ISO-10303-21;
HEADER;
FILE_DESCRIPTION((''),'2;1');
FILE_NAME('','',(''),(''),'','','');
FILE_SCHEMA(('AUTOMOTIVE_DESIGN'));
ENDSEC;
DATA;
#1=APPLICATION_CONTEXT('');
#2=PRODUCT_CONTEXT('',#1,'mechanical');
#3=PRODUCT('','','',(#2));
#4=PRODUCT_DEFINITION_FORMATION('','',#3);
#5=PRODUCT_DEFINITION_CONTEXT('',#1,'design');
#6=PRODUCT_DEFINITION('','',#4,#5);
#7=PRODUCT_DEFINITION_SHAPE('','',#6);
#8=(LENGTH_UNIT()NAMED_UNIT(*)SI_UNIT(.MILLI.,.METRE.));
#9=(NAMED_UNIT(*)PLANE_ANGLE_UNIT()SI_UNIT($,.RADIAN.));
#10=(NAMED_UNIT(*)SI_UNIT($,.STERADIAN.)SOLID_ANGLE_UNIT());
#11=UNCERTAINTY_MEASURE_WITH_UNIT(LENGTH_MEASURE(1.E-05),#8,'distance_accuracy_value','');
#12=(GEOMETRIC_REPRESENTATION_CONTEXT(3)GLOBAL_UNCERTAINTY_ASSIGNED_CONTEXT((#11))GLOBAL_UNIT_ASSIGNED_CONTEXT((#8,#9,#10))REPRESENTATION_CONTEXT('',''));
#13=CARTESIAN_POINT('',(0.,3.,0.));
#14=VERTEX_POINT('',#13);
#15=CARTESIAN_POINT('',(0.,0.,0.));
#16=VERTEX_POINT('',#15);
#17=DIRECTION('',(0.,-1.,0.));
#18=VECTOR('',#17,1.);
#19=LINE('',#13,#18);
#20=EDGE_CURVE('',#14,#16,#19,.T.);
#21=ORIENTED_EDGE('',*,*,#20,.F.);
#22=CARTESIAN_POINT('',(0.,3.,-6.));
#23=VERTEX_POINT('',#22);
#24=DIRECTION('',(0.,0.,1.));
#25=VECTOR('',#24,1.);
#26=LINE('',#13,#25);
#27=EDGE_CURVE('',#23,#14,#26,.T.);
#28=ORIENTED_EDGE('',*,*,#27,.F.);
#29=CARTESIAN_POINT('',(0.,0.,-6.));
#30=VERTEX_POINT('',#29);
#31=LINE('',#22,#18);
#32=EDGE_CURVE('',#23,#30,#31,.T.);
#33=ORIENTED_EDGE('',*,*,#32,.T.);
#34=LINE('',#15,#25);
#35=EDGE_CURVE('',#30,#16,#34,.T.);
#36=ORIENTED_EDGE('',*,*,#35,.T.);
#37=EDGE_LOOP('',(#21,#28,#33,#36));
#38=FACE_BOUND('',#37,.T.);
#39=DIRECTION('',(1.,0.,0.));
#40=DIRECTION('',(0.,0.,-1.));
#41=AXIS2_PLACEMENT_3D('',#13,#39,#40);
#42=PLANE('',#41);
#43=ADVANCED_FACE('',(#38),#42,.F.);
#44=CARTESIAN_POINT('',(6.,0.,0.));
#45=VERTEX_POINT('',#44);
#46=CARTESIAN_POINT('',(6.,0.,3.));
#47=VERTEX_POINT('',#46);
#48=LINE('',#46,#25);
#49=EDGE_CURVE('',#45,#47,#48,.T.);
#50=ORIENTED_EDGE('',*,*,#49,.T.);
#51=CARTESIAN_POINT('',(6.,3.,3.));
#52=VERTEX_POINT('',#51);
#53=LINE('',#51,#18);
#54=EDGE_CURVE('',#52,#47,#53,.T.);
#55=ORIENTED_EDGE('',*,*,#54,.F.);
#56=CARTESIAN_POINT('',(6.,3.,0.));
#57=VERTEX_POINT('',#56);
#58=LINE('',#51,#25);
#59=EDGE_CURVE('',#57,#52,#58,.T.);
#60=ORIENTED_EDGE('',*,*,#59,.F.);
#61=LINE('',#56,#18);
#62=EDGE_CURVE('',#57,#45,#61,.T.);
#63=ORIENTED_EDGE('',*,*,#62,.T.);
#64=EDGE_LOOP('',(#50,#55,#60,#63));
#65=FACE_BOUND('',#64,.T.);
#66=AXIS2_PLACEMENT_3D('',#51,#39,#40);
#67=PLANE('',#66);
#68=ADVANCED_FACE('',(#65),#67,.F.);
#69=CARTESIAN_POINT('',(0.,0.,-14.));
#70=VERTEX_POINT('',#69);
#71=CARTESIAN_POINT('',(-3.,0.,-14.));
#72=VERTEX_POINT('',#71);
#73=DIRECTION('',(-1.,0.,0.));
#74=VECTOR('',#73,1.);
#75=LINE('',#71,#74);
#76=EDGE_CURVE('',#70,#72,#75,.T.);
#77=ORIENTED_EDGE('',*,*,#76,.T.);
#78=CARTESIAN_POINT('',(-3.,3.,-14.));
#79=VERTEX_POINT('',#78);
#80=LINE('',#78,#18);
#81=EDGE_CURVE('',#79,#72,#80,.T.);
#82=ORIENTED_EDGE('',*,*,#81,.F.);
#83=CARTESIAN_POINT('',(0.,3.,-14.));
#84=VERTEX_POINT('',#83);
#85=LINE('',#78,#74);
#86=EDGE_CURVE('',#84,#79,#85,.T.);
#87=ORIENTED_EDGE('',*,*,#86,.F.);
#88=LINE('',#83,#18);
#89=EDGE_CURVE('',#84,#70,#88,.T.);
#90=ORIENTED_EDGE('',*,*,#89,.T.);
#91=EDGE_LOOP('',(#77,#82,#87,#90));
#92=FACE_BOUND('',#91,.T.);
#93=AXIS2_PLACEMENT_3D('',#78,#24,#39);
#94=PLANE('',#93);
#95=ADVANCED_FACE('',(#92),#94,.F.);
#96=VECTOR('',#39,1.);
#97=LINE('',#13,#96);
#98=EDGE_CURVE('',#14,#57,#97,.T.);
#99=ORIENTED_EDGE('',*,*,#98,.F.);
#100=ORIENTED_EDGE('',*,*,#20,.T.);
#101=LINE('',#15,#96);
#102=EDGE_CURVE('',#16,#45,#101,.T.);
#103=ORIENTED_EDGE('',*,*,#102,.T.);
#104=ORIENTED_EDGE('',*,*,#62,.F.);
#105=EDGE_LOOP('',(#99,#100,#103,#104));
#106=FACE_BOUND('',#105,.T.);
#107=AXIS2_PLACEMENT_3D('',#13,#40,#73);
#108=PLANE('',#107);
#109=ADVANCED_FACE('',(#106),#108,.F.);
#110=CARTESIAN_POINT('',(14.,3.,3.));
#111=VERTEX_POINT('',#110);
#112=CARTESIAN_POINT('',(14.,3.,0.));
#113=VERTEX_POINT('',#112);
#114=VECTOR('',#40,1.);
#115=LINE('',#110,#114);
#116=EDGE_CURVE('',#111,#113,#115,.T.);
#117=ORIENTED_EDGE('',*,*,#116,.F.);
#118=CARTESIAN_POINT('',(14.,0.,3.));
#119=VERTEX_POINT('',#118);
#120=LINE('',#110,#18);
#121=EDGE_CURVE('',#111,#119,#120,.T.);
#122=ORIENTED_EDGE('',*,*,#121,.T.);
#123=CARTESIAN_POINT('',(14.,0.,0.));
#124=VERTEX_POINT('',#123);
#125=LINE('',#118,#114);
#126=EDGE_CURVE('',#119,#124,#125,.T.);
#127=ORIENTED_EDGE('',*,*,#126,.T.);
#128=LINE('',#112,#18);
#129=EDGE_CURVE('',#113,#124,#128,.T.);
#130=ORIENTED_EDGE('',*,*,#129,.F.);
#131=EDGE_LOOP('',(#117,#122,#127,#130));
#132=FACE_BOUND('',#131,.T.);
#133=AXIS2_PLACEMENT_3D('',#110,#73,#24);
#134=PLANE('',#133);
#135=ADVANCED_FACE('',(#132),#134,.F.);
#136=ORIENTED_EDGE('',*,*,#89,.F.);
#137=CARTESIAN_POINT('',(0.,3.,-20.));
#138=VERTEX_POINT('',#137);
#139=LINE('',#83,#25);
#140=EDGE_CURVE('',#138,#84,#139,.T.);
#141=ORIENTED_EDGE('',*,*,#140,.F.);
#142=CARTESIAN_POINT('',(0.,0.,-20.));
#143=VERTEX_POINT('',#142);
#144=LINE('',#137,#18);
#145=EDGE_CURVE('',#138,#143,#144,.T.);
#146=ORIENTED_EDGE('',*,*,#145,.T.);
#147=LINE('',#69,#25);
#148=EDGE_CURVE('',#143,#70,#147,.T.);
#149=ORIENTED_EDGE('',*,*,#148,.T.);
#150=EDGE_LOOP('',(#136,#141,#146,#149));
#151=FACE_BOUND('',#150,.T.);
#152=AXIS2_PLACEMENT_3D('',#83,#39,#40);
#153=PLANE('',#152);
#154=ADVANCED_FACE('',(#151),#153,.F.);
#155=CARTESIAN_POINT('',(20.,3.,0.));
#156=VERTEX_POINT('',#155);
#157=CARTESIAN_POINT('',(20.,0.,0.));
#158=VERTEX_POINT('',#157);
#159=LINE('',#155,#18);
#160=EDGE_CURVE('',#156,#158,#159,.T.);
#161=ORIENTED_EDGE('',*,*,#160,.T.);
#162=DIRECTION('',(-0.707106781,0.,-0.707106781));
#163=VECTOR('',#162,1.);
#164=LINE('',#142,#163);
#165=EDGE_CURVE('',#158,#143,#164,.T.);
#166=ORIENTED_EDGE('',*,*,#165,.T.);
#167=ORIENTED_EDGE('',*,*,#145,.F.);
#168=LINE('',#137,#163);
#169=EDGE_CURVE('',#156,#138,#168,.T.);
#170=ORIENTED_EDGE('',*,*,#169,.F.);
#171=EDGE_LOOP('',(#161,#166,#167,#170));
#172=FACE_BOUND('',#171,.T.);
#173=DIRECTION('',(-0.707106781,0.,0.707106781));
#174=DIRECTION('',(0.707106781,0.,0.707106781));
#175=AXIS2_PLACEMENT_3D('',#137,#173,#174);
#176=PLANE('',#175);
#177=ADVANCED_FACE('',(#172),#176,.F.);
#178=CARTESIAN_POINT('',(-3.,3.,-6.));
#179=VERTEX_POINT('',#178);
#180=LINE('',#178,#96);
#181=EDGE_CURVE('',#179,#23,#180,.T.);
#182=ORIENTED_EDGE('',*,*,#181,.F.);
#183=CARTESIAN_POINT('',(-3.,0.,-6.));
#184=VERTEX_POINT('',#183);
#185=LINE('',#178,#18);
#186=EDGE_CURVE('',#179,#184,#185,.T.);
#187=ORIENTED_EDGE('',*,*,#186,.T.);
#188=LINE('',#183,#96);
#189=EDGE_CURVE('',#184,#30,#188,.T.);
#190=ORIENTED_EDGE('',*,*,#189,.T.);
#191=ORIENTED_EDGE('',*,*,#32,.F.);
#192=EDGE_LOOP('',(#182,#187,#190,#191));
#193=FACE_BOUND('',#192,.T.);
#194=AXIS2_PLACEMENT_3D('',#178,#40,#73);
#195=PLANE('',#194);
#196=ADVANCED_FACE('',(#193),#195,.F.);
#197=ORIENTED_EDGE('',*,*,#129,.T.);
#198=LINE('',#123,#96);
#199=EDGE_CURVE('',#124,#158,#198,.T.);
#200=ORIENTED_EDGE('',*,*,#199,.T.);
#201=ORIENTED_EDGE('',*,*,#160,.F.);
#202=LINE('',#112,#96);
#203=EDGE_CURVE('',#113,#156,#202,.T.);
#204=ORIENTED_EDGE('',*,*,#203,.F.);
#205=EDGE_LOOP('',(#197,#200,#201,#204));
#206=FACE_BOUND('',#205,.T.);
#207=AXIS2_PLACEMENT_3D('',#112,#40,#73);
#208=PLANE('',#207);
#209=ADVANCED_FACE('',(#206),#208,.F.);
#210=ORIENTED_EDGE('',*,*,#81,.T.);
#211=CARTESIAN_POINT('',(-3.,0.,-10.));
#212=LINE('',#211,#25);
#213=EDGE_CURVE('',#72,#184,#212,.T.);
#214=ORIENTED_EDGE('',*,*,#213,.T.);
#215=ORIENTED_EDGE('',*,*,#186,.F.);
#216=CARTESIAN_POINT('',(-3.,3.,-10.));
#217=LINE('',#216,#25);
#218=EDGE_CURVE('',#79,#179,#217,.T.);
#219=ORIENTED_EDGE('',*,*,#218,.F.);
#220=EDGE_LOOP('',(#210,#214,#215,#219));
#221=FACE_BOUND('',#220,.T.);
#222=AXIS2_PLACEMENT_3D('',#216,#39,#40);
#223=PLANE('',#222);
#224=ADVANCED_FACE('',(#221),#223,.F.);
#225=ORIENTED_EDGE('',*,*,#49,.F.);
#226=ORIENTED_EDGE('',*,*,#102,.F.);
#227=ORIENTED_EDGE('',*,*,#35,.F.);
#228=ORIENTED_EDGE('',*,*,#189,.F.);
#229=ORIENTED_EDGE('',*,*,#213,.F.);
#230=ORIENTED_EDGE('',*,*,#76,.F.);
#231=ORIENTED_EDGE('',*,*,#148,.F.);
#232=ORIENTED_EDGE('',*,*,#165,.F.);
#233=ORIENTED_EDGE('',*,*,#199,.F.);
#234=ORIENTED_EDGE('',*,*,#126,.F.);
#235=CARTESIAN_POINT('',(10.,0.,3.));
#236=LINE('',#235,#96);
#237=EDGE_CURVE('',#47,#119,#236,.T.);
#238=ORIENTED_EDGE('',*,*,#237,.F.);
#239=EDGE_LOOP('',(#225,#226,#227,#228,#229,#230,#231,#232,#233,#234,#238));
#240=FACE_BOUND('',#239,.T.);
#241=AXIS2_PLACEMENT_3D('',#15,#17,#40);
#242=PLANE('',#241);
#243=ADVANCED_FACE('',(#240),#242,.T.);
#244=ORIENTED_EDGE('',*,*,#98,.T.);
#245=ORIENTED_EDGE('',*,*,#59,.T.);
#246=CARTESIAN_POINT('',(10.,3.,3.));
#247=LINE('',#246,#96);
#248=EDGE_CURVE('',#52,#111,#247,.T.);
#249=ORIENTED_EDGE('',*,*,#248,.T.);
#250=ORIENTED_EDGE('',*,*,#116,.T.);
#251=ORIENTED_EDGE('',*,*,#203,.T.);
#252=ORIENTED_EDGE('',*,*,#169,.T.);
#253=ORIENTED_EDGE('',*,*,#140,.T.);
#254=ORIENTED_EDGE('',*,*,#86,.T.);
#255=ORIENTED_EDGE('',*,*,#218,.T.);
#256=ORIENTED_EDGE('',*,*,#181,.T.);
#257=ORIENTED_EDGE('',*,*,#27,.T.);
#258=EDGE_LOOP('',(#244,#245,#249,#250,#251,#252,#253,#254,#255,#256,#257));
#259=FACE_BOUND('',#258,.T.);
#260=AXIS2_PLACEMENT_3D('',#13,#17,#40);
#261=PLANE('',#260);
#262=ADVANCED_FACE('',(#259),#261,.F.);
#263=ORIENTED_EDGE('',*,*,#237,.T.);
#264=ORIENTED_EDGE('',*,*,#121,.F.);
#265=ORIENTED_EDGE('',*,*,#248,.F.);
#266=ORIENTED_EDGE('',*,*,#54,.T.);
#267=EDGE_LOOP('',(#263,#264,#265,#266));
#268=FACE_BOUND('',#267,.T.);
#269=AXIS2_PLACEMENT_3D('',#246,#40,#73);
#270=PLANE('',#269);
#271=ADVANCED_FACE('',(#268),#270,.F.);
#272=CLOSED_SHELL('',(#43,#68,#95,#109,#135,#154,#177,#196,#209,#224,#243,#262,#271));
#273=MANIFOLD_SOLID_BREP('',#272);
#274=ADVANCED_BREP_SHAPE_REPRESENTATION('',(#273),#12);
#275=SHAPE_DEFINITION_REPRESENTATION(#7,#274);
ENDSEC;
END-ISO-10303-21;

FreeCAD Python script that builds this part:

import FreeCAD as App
import Part
import Sketcher
from FreeCAD import Vector
Q = App.Units.Quantity


def add_polygon(sketch, points):
    """Adds a closed chain of lines whose ends are joined by coincident constraints."""
    first, n = sketch.GeometryCount, len(points)
    for a, b in zip(points, points[1:] + points[:1]):
        sketch.addGeometry(Part.LineSegment(App.Vector(*a, 0), App.Vector(*b, 0)), False)
    for i in range(n):
        sketch.addConstraint(Sketcher.Constraint("Coincident", first + i, 2, first + (i + 1) % n, 1))

doc = App.newDocument("Part")
body = doc.addObject("PartDesign::Body", "Body")

sketch1 = doc.addObject("Sketcher::SketchObject", "Sketch")
body.addObject(sketch1)
sketch1.AttachmentSupport = (doc.XZ_Plane, [""])
sketch1.MapMode = "FlatFace"
add_polygon(sketch1, [(0, 0), (6, 0), (6, 3), (14, 3), (14, 0), (20, 0), (0, -20), (0, -14), (-3, -14), (-3, -6), (0, -6)])
sketch1.addConstraint(Sketcher.Constraint("Horizontal", 0))
sketch1.addConstraint(Sketcher.Constraint("Vertical", 1))
sketch1.addConstraint(Sketcher.Constraint("Horizontal", 2))
sketch1.addConstraint(Sketcher.Constraint("Vertical", 3))
sketch1.addConstraint(Sketcher.Constraint("Horizontal", 4))
sketch1.addConstraint(Sketcher.Constraint("Vertical", 6))
sketch1.addConstraint(Sketcher.Constraint("Horizontal", 7))
sketch1.addConstraint(Sketcher.Constraint("Vertical", 8))
sketch1.addConstraint(Sketcher.Constraint("Horizontal", 9))
sketch1.addConstraint(Sketcher.Constraint("Vertical", 10))
sketch1.addConstraint(Sketcher.Constraint("Coincident", 10, 2, -1, 1))
sketch1.addConstraint(Sketcher.Constraint("PointOnObject", 3, 2, -1))
sketch1.addConstraint(Sketcher.Constraint("PointOnObject", 5, 2, -2))
sketch1.addConstraint(Sketcher.Constraint("Equal", 0, 4))
sketch1.addConstraint(Sketcher.Constraint("Equal", 9, 1))
sketch1.addConstraint(Sketcher.Constraint("Equal", 4, 6))
sketch1.addConstraint(Sketcher.Constraint("Equal", 2, 8))
sketch1.addConstraint(Sketcher.Constraint("Equal", 6, 10))
sketch1.addConstraint(Sketcher.Constraint("DistanceX", 0, 1, 0, 2, Q("6 mm")))
sketch1.addConstraint(Sketcher.Constraint("DistanceX", 2, 1, 2, 2, Q("8 mm")))
sketch1.addConstraint(Sketcher.Constraint("DistanceX", 7, 2, 7, 1, Q("3 mm")))
pad1 = doc.addObject("PartDesign::Pad", "Pad")
body.addObject(pad1)
pad1.Profile = sketch1
pad1.Length = 3
pad1.Reversed = True

doc.recompute()
